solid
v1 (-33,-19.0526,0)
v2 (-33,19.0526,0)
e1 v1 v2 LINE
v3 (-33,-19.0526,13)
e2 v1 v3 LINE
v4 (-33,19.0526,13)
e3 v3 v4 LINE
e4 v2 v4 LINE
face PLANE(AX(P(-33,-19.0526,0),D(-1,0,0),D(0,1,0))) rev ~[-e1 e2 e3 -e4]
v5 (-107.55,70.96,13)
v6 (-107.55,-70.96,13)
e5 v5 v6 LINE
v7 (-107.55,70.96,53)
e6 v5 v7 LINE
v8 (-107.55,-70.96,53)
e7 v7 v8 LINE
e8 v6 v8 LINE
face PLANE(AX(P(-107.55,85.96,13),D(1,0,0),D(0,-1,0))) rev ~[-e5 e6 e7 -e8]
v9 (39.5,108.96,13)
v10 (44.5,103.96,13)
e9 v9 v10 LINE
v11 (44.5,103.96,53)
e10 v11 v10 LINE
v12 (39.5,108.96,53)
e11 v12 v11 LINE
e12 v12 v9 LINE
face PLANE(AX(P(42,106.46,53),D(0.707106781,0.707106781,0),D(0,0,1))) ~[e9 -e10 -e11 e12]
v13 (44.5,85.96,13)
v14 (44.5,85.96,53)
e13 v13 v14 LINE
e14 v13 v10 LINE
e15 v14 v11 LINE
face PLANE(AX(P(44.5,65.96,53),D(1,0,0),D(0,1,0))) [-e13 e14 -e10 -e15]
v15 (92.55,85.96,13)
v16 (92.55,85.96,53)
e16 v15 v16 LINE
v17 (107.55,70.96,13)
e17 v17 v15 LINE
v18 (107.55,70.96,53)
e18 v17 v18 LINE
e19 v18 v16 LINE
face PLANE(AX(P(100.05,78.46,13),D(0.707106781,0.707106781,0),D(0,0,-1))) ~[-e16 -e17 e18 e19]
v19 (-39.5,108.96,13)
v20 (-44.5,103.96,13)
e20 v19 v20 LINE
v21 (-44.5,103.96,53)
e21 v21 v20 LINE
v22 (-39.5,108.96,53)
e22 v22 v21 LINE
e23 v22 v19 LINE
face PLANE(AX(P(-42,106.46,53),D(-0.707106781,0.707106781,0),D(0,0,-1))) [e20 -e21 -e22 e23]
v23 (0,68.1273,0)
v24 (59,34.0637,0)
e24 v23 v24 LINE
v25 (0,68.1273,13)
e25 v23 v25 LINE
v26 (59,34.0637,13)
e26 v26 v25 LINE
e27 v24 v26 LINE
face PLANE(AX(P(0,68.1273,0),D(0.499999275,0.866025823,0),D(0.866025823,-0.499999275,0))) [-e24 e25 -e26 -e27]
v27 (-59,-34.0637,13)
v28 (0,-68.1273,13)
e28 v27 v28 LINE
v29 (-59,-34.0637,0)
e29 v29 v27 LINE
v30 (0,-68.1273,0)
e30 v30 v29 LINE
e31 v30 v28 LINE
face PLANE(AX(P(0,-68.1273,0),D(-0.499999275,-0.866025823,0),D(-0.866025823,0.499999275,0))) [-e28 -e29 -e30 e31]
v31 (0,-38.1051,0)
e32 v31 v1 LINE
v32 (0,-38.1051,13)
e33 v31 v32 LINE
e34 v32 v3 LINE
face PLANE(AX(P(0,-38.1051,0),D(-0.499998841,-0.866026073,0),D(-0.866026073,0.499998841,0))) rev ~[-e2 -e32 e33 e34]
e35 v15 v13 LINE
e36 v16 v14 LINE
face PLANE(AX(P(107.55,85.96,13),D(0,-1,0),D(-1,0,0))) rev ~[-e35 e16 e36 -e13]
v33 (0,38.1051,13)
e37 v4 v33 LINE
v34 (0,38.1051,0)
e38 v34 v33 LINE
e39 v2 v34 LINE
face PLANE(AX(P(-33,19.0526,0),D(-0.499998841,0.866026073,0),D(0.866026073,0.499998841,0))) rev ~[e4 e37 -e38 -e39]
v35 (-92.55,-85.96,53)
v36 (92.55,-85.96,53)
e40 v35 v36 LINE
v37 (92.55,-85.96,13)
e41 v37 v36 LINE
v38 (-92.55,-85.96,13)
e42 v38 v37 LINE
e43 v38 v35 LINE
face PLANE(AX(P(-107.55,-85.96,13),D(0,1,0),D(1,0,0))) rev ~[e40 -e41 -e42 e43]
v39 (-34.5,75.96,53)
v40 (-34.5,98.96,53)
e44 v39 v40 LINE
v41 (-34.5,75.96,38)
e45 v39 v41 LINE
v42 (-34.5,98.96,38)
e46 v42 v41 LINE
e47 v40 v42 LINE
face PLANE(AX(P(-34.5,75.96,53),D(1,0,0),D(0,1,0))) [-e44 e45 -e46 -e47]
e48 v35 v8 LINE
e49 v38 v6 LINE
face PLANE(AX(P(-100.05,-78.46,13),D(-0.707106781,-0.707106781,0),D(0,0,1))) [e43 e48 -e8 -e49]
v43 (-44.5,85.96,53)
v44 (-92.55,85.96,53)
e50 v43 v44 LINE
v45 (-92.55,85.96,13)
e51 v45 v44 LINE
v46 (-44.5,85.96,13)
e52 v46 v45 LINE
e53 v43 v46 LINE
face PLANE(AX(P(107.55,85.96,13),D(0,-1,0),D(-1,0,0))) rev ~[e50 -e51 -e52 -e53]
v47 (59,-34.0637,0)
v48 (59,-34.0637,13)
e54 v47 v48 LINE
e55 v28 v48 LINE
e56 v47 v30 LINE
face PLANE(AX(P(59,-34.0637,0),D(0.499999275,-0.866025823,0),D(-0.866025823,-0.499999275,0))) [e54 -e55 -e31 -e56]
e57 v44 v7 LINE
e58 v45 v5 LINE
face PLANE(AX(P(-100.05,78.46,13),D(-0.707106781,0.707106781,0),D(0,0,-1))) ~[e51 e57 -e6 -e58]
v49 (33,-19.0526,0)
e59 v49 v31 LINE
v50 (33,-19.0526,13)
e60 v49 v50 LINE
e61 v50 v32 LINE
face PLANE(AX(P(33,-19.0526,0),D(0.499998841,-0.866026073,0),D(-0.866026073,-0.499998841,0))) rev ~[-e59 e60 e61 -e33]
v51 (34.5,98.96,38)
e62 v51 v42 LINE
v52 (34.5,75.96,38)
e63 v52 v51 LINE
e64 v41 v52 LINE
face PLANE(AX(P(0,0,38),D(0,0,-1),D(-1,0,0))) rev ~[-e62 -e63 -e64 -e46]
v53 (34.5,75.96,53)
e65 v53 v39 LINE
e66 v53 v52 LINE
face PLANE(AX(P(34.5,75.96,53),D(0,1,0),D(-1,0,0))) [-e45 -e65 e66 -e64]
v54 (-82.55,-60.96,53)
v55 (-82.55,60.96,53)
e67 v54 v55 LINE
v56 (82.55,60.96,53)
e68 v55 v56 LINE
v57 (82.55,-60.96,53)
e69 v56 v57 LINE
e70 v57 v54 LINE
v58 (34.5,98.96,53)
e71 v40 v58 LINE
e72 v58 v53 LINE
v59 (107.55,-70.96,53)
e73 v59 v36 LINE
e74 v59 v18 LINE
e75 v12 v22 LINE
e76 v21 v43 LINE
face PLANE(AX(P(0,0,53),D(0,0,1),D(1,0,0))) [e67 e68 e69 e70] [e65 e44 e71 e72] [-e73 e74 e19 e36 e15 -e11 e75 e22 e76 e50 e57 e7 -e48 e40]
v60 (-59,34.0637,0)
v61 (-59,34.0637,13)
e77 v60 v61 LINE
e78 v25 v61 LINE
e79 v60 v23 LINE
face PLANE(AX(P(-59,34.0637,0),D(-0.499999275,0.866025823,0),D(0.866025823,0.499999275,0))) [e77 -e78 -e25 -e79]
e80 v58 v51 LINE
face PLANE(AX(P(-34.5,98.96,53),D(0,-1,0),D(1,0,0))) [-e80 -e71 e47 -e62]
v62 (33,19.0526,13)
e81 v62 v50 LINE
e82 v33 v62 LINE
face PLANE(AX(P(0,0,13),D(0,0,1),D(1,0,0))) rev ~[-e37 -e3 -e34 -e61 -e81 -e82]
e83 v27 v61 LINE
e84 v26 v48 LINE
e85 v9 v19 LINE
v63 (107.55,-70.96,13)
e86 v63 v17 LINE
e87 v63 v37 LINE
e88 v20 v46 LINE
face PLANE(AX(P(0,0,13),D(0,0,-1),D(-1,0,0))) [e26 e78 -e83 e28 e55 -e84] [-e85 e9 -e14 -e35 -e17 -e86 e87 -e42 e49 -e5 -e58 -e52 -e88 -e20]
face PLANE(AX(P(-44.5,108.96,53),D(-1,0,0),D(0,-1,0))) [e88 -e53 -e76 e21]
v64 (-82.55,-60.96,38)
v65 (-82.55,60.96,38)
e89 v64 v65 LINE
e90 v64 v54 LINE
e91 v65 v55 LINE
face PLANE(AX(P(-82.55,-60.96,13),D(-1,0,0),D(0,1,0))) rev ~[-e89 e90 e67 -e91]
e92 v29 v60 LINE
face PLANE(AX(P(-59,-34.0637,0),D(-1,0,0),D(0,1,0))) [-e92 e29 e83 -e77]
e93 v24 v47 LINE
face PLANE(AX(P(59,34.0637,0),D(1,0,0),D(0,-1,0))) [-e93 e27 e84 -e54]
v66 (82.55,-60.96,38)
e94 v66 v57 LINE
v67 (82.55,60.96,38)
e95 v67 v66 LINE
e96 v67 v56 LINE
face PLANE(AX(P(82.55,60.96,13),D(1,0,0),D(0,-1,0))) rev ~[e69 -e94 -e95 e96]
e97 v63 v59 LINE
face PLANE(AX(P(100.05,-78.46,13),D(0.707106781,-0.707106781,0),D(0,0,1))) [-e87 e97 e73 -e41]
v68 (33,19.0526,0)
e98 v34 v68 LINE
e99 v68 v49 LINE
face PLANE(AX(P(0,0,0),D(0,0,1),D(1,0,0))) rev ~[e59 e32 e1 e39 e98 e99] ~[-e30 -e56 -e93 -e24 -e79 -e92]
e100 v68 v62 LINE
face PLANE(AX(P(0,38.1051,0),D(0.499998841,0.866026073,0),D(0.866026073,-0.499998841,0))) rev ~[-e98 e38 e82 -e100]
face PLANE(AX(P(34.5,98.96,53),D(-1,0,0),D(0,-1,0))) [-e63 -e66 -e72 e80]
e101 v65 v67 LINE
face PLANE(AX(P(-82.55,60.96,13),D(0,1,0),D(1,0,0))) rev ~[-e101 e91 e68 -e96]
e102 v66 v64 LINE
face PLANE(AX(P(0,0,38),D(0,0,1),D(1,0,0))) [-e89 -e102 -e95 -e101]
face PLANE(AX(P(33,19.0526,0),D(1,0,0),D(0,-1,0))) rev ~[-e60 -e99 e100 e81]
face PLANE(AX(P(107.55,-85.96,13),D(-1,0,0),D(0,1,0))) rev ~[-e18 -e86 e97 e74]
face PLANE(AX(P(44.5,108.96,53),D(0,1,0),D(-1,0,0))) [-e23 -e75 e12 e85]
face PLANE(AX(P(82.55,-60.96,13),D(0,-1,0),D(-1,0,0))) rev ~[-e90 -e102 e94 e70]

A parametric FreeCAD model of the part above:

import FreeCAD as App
import Part
import Sketcher
from FreeCAD import Vector
Q = App.Units.Quantity


def edges_at(feature, points):
    """Names of the edges that pass closest to the given points."""
    edges = feature.Shape.Edges
    near = lambda p: min(range(len(edges)), key=lambda i: edges[i].distToShape(Part.Vertex(*p))[0])
    return sorted({f"Edge{near(p) + 1}" for p in points})

doc = App.newDocument("Part")
body = doc.addObject("PartDesign::Body", "Body")

# Sketch on XY plane
sketch1 = body.newObject("Sketcher::SketchObject", "Sketch")
sketch1.AttachmentSupport = (doc.getObject("XY_Plane"), [""])
sketch1.MapMode = "FlatFace"
sketch1.addGeometry(Part.LineSegment(Vector(59, 34, 0), Vector(0, 68, 0)), False)
sketch1.addGeometry(Part.LineSegment(Vector(0, 68, 0), Vector(-59, 34, 0)), False)
sketch1.addGeometry(Part.LineSegment(Vector(-59, 34, 0), Vector(-59, -34, 0)), False)
sketch1.addGeometry(Part.LineSegment(Vector(-59, -34, 0), Vector(0, -68, 0)), False)
sketch1.addGeometry(Part.LineSegment(Vector(0, -68, 0), Vector(59, -34, 0)), False)
sketch1.addGeometry(Part.LineSegment(Vector(59, -34, 0), Vector(59, 34, 0)), False)
sketch1.addGeometry(Part.LineSegment(Vector(0, 38, 0), Vector(33, 19, 0)), False)
sketch1.addGeometry(Part.LineSegment(Vector(33, 19, 0), Vector(33, -19, 0)), False)
sketch1.addGeometry(Part.LineSegment(Vector(33, -19, 0), Vector(0, -38, 0)), False)
sketch1.addGeometry(Part.LineSegment(Vector(0, -38, 0), Vector(-33, -19, 0)), False)
sketch1.addGeometry(Part.LineSegment(Vector(-33, -19, 0), Vector(-33, 19, 0)), False)
sketch1.addGeometry(Part.LineSegment(Vector(-33, 19, 0), Vector(0, 38, 0)), False)
sketch1.addConstraint(Sketcher.Constraint("Coincident", 0, 2, 1, 1))
sketch1.addConstraint(Sketcher.Constraint("Coincident", 1, 2, 2, 1))
sketch1.addConstraint(Sketcher.Constraint("Coincident", 2, 2, 3, 1))
sketch1.addConstraint(Sketcher.Constraint("Coincident", 3, 2, 4, 1))
sketch1.addConstraint(Sketcher.Constraint("Coincident", 4, 2, 5, 1))
sketch1.addConstraint(Sketcher.Constraint("Coincident", 5, 2, 0, 1))
sketch1.addConstraint(Sketcher.Constraint("Coincident", 6, 2, 7, 1))
sketch1.addConstraint(Sketcher.Constraint("Coincident", 7, 2, 8, 1))
sketch1.addConstraint(Sketcher.Constraint("Coincident", 8, 2, 9, 1))
sketch1.addConstraint(Sketcher.Constraint("Coincident", 9, 2, 10, 1))
sketch1.addConstraint(Sketcher.Constraint("Coincident", 10, 2, 11, 1))
sketch1.addConstraint(Sketcher.Constraint("Coincident", 11, 2, 6, 1))
sketch1.addConstraint(Sketcher.Constraint("Vertical", 2))
sketch1.addConstraint(Sketcher.Constraint("Vertical", 5))
sketch1.addConstraint(Sketcher.Constraint("Vertical", 7))
sketch1.addConstraint(Sketcher.Constraint("Vertical", 10))
sketch1.addConstraint(Sketcher.Constraint("Symmetric", 0, 2, 3, 2, -1, 1))
sketch1.addConstraint(Sketcher.Constraint("Symmetric", 1, 2, 4, 2, -1, 1))
sketch1.addConstraint(Sketcher.Constraint("Symmetric", 6, 2, 9, 2, -1, 1))
sketch1.addConstraint(Sketcher.Constraint("Symmetric", 8, 2, 11, 2, -1, 1))
sketch1.addConstraint(Sketcher.Constraint("PointOnObject", 0, 2, -2))
sketch1.addConstraint(Sketcher.Constraint("PointOnObject", 8, 2, -2))
sketch1.addConstraint(Sketcher.Constraint("Parallel", 0, 3))
sketch1.addConstraint(Sketcher.Constraint("Parallel", 3, 6))
sketch1.addConstraint(Sketcher.Constraint("Parallel", 4, 8))
sketch1.addConstraint(Sketcher.Constraint("Parallel", 8, 11))
sketch1.addConstraint(Sketcher.Constraint("Horizontal", 2, 2, 4, 2))
sketch1.addConstraint(Sketcher.Constraint("DistanceX", 2, 2, 4, 2, 118.0))
sketch1.addConstraint(Sketcher.Constraint("DistanceX", 9, 2, 7, 2, 66.0))
sketch1.addConstraint(Sketcher.Constraint("Angle", 0, Q("150 deg")))
sketch1.addConstraint(Sketcher.Constraint("DistanceY", 3, 2, 6, 2, 87.18))
sketch1.addConstraint(Sketcher.Constraint("DistanceY", 2, 2, 2, 1, 68.1274))
pad1 = body.newObject("PartDesign::Pad", "Pad")
pad1.Profile = sketch1
pad1.Length = 13

# Sketch on XY plane
sketch2 = body.newObject("Sketcher::SketchObject", "Sketch001")
sketch2.AttachmentSupport = (doc.getObject("XY_Plane"), [""])
sketch2.MapMode = "FlatFace"
sketch2.AttachmentOffset = App.Placement(Vector(0, 0, 13), App.Rotation())
sketch2.addGeometry(Part.LineSegment(Vector(108, -86, 0), Vector(108, 86, 0)), False)
sketch2.addGeometry(Part.LineSegment(Vector(108, 86, 0), Vector(-108, 86, 0)), False)
sketch2.addGeometry(Part.LineSegment(Vector(-108, 86, 0), Vector(-108, -86, 0)), False)
sketch2.addGeometry(Part.LineSegment(Vector(-108, -86, 0), Vector(108, -86, 0)), False)
sketch2.addGeometry(Part.LineSegment(Vector(-83, -61, 0), Vector(-83, 61, 0)), False)
sketch2.addGeometry(Part.LineSegment(Vector(-83, 61, 0), Vector(83, 61, 0)), False)
sketch2.addGeometry(Part.LineSegment(Vector(83, 61, 0), Vector(83, -61, 0)), False)
sketch2.addGeometry(Part.LineSegment(Vector(83, -61, 0), Vector(-83, -61, 0)), False)
sketch2.addConstraint(Sketcher.Constraint("Coincident", 0, 2, 1, 1))
sketch2.addConstraint(Sketcher.Constraint("Coincident", 1, 2, 2, 1))
sketch2.addConstraint(Sketcher.Constraint("Coincident", 2, 2, 3, 1))
sketch2.addConstraint(Sketcher.Constraint("Coincident", 3, 2, 0, 1))
sketch2.addConstraint(Sketcher.Constraint("Coincident", 4, 2, 5, 1))
sketch2.addConstraint(Sketcher.Constraint("Coincident", 5, 2, 6, 1))
sketch2.addConstraint(Sketcher.Constraint("Coincident", 6, 2, 7, 1))
sketch2.addConstraint(Sketcher.Constraint("Coincident", 7, 2, 4, 1))
sketch2.addConstraint(Sketcher.Constraint("Vertical", 0))
sketch2.addConstraint(Sketcher.Constraint("Horizontal", 1))
sketch2.addConstraint(Sketcher.Constraint("Vertical", 2))
sketch2.addConstraint(Sketcher.Constraint("Horizontal", 3))
sketch2.addConstraint(Sketcher.Constraint("Vertical", 4))
sketch2.addConstraint(Sketcher.Constraint("Horizontal", 5))
sketch2.addConstraint(Sketcher.Constraint("Vertical", 6))
sketch2.addConstraint(Sketcher.Constraint("Horizontal", 7))
sketch2.addConstraint(Sketcher.Constraint("Symmetric", 0, 2, 2, 2, -1, 1))
sketch2.addConstraint(Sketcher.Constraint("Symmetric", 4, 2, 6, 2, -1, 1))
sketch2.addConstraint(Sketcher.Constraint("DistanceX", 5, 1, 5, 2, 165.1))
sketch2.addConstraint(Sketcher.Constraint("DistanceX", 1, 2, 4, 2, 25.0))
sketch2.addConstraint(Sketcher.Constraint("DistanceY", 4, 2, 1, 2, 25.0))
sketch2.addConstraint(Sketcher.Constraint("DistanceY", 4, 1, 4, 2, 121.92))
pad2 = body.newObject("PartDesign::Pad", "Pad001")
pad2.Profile = sketch2
pad2.Length = 40

# Sketch on XY plane
sketch3 = body.newObject("Sketcher::SketchObject", "Sketch002")
sketch3.AttachmentSupport = (doc.getObject("XY_Plane"), [""])
sketch3.MapMode = "FlatFace"
sketch3.AttachmentOffset = App.Placement(Vector(0, 0, 13), App.Rotation())
sketch3.addGeometry(Part.LineSegment(Vector(83, -61, 0), Vector(83, 61, 0)), False)
sketch3.addGeometry(Part.LineSegment(Vector(83, 61, 0), Vector(-83, 61, 0)), False)
sketch3.addGeometry(Part.LineSegment(Vector(-83, 61, 0), Vector(-83, -61, 0)), False)
sketch3.addGeometry(Part.LineSegment(Vector(-83, -61, 0), Vector(83, -61, 0)), False)
sketch3.addConstraint(Sketcher.Constraint("Coincident", 0, 2, 1, 1))
sketch3.addConstraint(Sketcher.Constraint("Coincident", 1, 2, 2, 1))
sketch3.addConstraint(Sketcher.Constraint("Coincident", 2, 2, 3, 1))
sketch3.addConstraint(Sketcher.Constraint("Coincident", 3, 2, 0, 1))
sketch3.addConstraint(Sketcher.Constraint("Vertical", 0))
sketch3.addConstraint(Sketcher.Constraint("Horizontal", 1))
sketch3.addConstraint(Sketcher.Constraint("Vertical", 2))
sketch3.addConstraint(Sketcher.Constraint("Horizontal", 3))
sketch3.addConstraint(Sketcher.Constraint("Symmetric", 0, 2, 2, 2, -1, 1))
sketch3.addConstraint(Sketcher.Constraint("DistanceX", 1, 2, 1, 1, 165.1))
sketch3.addConstraint(Sketcher.Constraint("DistanceY", 0, 1, 0, 2, 121.92))
pad3 = body.newObject("PartDesign::Pad", "Pad002")
pad3.Profile = sketch3
pad3.Length = 25
doc.recompute()

chamfer = body.newObject("PartDesign::Chamfer", "Chamfer")
chamfer.Base = (pad3, edges_at(pad3, [
    (107.55, 85.96, 33),
    (-107.55, 85.96, 33),
    (-107.55, -85.96, 33),
    (107.55, -85.96, 33),
]))
chamfer.Size = 15

# Sketch on XY plane
sketch4 = body.newObject("Sketcher::SketchObject", "Sketch003")
sketch4.AttachmentSupport = (doc.getObject("XY_Plane"), [""])
sketch4.MapMode = "FlatFace"
sketch4.AttachmentOffset = App.Placement(Vector(0, 0, 53), App.Rotation())
sketch4.addGeometry(Part.LineSegment(Vector(34, 99, 0), Vector(-34, 99, 0)), False)
sketch4.addGeometry(Part.LineSegment(Vector(-34, 99, 0), Vector(-34, 76, 0)), False)
sketch4.addGeometry(Part.LineSegment(Vector(-34, 76, 0), Vector(34, 76, 0)), False)
sketch4.addGeometry(Part.LineSegment(Vector(34, 76, 0), Vector(34, 99, 0)), False)
sketch4.addConstraint(Sketcher.Constraint("Coincident", 0, 2, 1, 1))
sketch4.addConstraint(Sketcher.Constraint("Coincident", 1, 2, 2, 1))
sketch4.addConstraint(Sketcher.Constraint("Coincident", 2, 2, 3, 1))
sketch4.addConstraint(Sketcher.Constraint("Coincident", 3, 2, 0, 1))
sketch4.addConstraint(Sketcher.Constraint("Horizontal", 0))
sketch4.addConstraint(Sketcher.Constraint("Vertical", 1))
sketch4.addConstraint(Sketcher.Constraint("Horizontal", 2))
sketch4.addConstraint(Sketcher.Constraint("Vertical", 3))
sketch4.addConstraint(Sketcher.Constraint("DistanceX", 0, 2, 0, 1, 69.0))
sketch4.addConstraint(Sketcher.Constraint("DistanceY", 1, 2, 1, 1, 23.0))
sketch4.addConstraint(Sketcher.Constraint("DistanceX", 0, 2, -1, 1, 34.5))
sketch4.addConstraint(Sketcher.Constraint("DistanceY", -1, 1, 0, 2, 98.96))
pocket1 = body.newObject("PartDesign::Pocket", "Pocket")
pocket1.Profile = sketch4
pocket1.Type = "ThroughAll"

# Sketch on XY plane
sketch5 = body.newObject("Sketcher::SketchObject", "Sketch004")
sketch5.AttachmentSupport = (doc.getObject("XY_Plane"), [""])
sketch5.MapMode = "FlatFace"
sketch5.AttachmentOffset = App.Placement(Vector(0, 0, 53), App.Rotation())
sketch5.addGeometry(Part.LineSegment(Vector(-44, 109, 0), Vector(-44, 66, 0)), False)
sketch5.addGeometry(Part.LineSegment(Vector(-44, 66, 0), Vector(44, 66, 0)), False)
sketch5.addGeometry(Part.LineSegment(Vector(44, 66, 0), Vector(44, 109, 0)), False)
sketch5.addGeometry(Part.LineSegment(Vector(44, 109, 0), Vector(-44, 109, 0)), False)
sketch5.addGeometry(Part.LineSegment(Vector(-34, 76, 0), Vector(-34, 99, 0)), False)
sketch5.addGeometry(Part.LineSegment(Vector(-34, 99, 0), Vector(34, 99, 0)), False)
sketch5.addGeometry(Part.LineSegment(Vector(34, 99, 0), Vector(34, 76, 0)), False)
sketch5.addGeometry(Part.LineSegment(Vector(34, 76, 0), Vector(-34, 76, 0)), False)
sketch5.addConstraint(Sketcher.Constraint("Coincident", 0, 2, 1, 1))
sketch5.addConstraint(Sketcher.Constraint("Coincident", 1, 2, 2, 1))
sketch5.addConstraint(Sketcher.Constraint("Coincident", 2, 2, 3, 1))
sketch5.addConstraint(Sketcher.Constraint("Coincident", 3, 2, 0, 1))
sketch5.addConstraint(Sketcher.Constraint("Coincident", 4, 2, 5, 1))
sketch5.addConstraint(Sketcher.Constraint("Coincident", 5, 2, 6, 1))
sketch5.addConstraint(Sketcher.Constraint("Coincident", 6, 2, 7, 1))
sketch5.addConstraint(Sketcher.Constraint("Coincident", 7, 2, 4, 1))
sketch5.addConstraint(Sketcher.Constraint("Vertical", 0))
sketch5.addConstraint(Sketcher.Constraint("Horizontal", 1))
sketch5.addConstraint(Sketcher.Constraint("Vertical", 2))
sketch5.addConstraint(Sketcher.Constraint("Horizontal", 3))
sketch5.addConstraint(Sketcher.Constraint("Vertical", 4))
sketch5.addConstraint(Sketcher.Constraint("Horizontal", 5))
sketch5.addConstraint(Sketcher.Constraint("Vertical", 6))
sketch5.addConstraint(Sketcher.Constraint("Horizontal", 7))
sketch5.addConstraint(Sketcher.Constraint("DistanceX", 5, 1, 5, 2, 69.0))
sketch5.addConstraint(Sketcher.Constraint("DistanceY", 4, 1, 4, 2, 23.0))
sketch5.addConstraint(Sketcher.Constraint("DistanceX", 3, 2, 4, 2, 10.0))
sketch5.addConstraint(Sketcher.Constraint("DistanceY", 4, 2, 3, 2, 10.0))
sketch5.addConstraint(Sketcher.Constraint("DistanceX", 5, 2, 2, 2, 10.0))
sketch5.addConstraint(Sketcher.Constraint("DistanceY", 1, 2, 6, 2, 10.0))
sketch5.addConstraint(Sketcher.Constraint("DistanceX", 0, 2, -1, 1, 44.5))
sketch5.addConstraint(Sketcher.Constraint("DistanceY", -1, 1, 0, 2, 65.96))
pad4 = body.newObject("PartDesign::Pad", "Pad003")
pad4.Profile = sketch5
pad4.Length = 40
pad4.Reversed = True

# Sketch on XY plane
sketch6 = body.newObject("Sketcher::SketchObject", "Sketch005")
sketch6.AttachmentSupport = (doc.getObject("XY_Plane"), [""])
sketch6.MapMode = "FlatFace"
sketch6.AttachmentOffset = App.Placement(Vector(0, 0, 13), App.Rotation())
sketch6.addGeometry(Part.LineSegment(Vector(-34, 99, 0), Vector(34, 99, 0)), False)
sketch6.addGeometry(Part.LineSegment(Vector(34, 99, 0), Vector(34, 76, 0)), False)
sketch6.addGeometry(Part.LineSegment(Vector(34, 76, 0), Vector(-34, 76, 0)), False)
sketch6.addGeometry(Part.LineSegment(Vector(-34, 76, 0), Vector(-34, 99, 0)), False)
sketch6.addConstraint(Sketcher.Constraint("Coincident", 0, 2, 1, 1))
sketch6.addConstraint(Sketcher.Constraint("Coincident", 1, 2, 2, 1))
sketch6.addConstraint(Sketcher.Constraint("Coincident", 2, 2, 3, 1))
sketch6.addConstraint(Sketcher.Constraint("Coincident", 3, 2, 0, 1))
sketch6.addConstraint(Sketcher.Constraint("Horizontal", 0))
sketch6.addConstraint(Sketcher.Constraint("Vertical", 1))
sketch6.addConstraint(Sketcher.Constraint("Horizontal", 2))
sketch6.addConstraint(Sketcher.Constraint("Vertical", 3))
sketch6.addConstraint(Sketcher.Constraint("DistanceX", 0, 1, 0, 2, 69.0))
sketch6.addConstraint(Sketcher.Constraint("DistanceY", 1, 2, 1, 1, 23.0))
sketch6.addConstraint(Sketcher.Constraint("DistanceX", -1, 1, 0, 2, 34.5))
sketch6.addConstraint(Sketcher.Constraint("DistanceY", -1, 1, 0, 2, 98.96))
pad5 = body.newObject("PartDesign::Pad", "Pad004")
pad5.Profile = sketch6
pad5.Length = 25
doc.recompute()

chamfer2 = body.newObject("PartDesign::Chamfer", "Chamfer001")
chamfer2.Base = (pad5, edges_at(pad5, [(-44.5, 108.96, 33), (44.5, 108.96, 33)]))
chamfer2.Size = 5

doc.recompute()
